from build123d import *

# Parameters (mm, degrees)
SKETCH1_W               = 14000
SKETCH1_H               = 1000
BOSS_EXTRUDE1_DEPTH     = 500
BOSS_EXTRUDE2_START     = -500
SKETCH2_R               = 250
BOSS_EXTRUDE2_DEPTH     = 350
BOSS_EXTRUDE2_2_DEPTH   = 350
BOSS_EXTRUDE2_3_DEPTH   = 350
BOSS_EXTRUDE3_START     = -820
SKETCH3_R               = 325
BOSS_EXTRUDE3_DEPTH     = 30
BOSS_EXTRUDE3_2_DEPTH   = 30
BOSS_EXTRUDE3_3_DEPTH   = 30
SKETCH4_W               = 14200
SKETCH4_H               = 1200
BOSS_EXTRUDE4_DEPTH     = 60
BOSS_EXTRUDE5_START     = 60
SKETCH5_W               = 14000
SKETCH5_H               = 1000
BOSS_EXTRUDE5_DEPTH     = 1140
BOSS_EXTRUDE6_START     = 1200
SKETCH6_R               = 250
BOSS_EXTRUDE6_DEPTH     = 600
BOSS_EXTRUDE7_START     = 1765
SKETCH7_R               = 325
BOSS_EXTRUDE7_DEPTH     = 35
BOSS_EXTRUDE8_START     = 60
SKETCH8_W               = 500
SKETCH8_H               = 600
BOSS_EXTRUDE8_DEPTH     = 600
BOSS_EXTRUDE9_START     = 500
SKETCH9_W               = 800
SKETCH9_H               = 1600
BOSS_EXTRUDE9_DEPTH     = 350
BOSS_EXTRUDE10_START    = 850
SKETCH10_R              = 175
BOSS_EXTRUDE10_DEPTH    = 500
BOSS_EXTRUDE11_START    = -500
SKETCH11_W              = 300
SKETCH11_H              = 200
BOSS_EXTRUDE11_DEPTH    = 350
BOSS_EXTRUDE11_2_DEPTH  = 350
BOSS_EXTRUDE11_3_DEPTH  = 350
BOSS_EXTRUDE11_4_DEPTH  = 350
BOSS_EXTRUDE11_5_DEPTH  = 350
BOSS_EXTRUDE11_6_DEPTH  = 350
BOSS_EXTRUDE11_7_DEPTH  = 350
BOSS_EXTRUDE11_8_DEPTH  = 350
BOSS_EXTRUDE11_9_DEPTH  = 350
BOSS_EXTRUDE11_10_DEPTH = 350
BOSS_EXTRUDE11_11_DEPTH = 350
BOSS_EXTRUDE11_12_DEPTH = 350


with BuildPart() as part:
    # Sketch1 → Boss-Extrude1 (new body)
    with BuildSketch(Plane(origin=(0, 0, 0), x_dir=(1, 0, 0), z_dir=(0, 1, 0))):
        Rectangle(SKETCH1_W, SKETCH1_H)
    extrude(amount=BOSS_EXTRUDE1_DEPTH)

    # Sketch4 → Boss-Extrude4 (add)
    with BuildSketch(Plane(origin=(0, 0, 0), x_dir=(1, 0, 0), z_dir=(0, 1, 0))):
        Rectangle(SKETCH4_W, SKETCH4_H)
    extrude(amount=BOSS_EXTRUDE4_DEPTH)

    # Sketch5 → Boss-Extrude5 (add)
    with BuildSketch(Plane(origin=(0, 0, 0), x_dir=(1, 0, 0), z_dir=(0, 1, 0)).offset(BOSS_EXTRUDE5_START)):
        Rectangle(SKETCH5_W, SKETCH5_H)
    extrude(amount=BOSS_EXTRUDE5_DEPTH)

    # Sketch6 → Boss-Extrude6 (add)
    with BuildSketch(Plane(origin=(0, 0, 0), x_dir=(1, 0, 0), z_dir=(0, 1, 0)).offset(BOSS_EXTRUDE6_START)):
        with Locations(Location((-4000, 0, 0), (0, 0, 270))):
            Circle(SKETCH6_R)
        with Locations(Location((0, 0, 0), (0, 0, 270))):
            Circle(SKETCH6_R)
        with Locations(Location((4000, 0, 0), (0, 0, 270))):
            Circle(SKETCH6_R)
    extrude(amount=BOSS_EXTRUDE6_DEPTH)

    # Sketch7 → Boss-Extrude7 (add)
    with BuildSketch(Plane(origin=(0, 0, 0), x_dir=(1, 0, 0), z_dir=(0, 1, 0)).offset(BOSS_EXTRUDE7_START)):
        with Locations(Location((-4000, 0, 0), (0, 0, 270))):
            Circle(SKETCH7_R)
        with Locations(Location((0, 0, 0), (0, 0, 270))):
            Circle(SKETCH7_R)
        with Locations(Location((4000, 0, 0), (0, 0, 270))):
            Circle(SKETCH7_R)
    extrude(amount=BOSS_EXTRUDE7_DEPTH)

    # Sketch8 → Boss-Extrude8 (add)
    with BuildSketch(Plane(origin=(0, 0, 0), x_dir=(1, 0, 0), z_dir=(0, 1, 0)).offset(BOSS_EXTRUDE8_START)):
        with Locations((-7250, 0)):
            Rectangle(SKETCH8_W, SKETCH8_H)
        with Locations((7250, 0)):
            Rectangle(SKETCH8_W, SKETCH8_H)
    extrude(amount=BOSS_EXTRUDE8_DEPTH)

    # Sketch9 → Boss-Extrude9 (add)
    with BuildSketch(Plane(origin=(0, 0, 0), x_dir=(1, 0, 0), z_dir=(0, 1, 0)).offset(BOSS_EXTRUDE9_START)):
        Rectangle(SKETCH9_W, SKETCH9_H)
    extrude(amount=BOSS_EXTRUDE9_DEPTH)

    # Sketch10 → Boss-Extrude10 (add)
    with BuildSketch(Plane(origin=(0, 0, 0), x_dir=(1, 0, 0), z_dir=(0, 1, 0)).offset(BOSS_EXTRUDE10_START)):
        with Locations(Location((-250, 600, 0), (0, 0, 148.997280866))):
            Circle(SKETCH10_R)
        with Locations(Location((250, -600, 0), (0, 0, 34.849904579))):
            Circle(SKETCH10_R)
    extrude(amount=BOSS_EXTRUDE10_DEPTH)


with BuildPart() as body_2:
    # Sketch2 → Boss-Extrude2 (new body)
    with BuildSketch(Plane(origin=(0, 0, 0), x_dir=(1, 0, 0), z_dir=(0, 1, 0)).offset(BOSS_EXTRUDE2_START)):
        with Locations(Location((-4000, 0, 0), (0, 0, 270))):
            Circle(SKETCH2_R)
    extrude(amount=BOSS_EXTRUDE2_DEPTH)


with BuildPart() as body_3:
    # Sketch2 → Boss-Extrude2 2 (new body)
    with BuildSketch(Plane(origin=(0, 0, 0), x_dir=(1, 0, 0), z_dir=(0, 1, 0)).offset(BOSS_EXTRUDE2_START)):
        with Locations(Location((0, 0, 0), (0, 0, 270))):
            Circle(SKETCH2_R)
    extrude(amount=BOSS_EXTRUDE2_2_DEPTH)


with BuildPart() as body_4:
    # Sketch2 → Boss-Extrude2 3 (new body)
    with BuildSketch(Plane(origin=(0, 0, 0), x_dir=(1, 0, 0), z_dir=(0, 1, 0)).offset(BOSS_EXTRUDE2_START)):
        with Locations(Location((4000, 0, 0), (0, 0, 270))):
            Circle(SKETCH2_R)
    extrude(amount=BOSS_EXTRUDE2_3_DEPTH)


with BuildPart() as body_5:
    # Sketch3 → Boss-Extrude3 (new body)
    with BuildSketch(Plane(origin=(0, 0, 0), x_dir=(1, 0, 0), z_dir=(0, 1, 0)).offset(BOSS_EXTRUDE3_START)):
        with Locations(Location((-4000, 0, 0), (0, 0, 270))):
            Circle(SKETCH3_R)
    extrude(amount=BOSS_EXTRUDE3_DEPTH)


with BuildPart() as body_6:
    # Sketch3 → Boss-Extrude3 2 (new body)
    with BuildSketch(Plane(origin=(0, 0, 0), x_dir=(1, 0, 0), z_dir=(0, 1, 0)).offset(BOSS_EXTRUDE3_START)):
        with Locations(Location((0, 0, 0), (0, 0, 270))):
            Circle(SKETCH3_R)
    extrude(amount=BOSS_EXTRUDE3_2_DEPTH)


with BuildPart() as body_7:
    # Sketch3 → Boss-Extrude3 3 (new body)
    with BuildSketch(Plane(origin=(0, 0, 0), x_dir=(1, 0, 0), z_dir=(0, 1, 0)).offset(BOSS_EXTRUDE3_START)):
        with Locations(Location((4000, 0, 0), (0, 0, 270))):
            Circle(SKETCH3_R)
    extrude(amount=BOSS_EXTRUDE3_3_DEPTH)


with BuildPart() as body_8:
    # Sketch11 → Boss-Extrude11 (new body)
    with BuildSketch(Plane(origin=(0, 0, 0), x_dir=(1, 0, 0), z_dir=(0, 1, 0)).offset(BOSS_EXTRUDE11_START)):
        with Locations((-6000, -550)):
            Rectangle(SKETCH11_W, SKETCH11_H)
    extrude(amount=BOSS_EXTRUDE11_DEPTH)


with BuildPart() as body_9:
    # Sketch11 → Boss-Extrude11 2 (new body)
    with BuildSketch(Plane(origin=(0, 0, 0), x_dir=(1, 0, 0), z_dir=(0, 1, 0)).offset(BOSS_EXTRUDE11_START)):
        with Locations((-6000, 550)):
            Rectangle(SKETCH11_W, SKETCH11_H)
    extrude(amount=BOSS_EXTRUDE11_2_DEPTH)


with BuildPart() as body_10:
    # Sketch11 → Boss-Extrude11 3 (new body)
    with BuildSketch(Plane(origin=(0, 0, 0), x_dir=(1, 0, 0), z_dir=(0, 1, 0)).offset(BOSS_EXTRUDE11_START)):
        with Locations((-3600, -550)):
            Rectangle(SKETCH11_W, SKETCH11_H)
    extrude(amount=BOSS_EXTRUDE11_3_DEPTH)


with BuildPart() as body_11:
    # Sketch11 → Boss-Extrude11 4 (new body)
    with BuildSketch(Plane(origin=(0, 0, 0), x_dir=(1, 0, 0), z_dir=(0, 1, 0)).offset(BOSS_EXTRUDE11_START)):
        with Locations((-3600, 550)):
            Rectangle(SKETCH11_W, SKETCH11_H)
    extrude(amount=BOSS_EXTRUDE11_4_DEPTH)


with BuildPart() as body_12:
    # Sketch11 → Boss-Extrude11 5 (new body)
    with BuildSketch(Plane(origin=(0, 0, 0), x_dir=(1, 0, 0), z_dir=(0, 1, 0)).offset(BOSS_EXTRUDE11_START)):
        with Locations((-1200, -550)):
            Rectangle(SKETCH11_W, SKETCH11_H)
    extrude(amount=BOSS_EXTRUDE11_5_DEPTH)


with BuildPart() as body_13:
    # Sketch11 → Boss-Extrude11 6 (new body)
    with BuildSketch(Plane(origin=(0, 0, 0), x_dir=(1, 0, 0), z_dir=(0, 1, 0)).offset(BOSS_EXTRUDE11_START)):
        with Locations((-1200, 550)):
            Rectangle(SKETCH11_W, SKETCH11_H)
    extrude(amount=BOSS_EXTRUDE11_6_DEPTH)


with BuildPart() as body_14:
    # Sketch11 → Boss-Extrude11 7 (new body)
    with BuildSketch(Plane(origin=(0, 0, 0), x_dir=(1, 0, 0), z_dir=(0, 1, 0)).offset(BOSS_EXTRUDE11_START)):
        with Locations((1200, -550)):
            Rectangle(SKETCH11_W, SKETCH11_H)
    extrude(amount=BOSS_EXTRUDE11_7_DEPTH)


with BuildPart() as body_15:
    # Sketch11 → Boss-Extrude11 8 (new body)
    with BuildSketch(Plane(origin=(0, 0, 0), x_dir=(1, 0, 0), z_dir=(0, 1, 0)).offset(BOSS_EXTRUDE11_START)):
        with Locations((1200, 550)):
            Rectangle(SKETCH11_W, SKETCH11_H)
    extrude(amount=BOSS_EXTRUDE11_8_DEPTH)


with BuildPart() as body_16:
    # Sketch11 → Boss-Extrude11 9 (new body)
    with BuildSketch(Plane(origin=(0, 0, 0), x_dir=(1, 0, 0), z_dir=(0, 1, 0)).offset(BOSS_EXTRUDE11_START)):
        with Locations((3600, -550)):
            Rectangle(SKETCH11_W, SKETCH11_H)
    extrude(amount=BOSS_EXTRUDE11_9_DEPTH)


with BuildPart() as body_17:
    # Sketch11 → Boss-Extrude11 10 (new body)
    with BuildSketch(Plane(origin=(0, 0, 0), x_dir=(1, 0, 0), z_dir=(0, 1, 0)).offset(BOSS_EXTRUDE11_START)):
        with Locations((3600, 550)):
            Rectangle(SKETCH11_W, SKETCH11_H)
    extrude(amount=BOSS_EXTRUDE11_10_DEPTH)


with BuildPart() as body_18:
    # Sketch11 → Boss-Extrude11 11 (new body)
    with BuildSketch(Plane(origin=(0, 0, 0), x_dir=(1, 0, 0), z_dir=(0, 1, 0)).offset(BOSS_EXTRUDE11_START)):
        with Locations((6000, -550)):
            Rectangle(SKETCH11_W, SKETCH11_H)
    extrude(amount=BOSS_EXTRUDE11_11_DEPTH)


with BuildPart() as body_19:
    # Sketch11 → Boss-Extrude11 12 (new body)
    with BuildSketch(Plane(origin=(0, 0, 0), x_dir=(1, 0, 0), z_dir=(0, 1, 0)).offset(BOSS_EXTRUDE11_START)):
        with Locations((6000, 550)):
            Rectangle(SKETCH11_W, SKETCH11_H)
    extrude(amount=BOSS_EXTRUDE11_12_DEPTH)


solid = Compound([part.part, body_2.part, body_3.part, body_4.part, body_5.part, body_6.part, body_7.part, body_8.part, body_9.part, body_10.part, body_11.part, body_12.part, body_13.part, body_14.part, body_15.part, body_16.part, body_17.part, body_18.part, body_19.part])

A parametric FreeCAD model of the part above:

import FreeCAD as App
import Part
import Sketcher


def add_polygon(sketch, points):
    """Adds a closed chain of lines whose ends are joined by coincident constraints."""
    first, n = sketch.GeometryCount, len(points)
    for a, b in zip(points, points[1:] + points[:1]):
        sketch.addGeometry(Part.LineSegment(App.Vector(*a, 0), App.Vector(*b, 0)), False)
    for i in range(n):
        sketch.addConstraint(Sketcher.Constraint("Coincident", first + i, 2, first + (i + 1) % n, 1))

doc = App.newDocument("Part")
params = doc.addObject("Spreadsheet::Sheet", "Params")
for row, (alias, value) in enumerate([
    ("sketch1_width", "14000 mm"),
    ("sketch1_height", "1000 mm"),
    ("pad1_length", "500 mm"),
    ("sketch2_width", "14200 mm"),
    ("sketch2_height", "1200 mm"),
    ("pad2_length", "60 mm"),
    ("sketch3_width", "14000 mm"),
    ("sketch3_height", "1000 mm"),
    ("pad3_length", "1140 mm"),
    ("sketch4_diameter", "500 mm"),
    ("pad4_length", "600 mm"),
    ("sketch5_diameter", "650 mm"),
    ("pad5_length", "35 mm"),
    ("sketch6_width", "500 mm"),
    ("sketch6_height", "600 mm"),
    ("pad6_length", "600 mm"),
    ("sketch7_width", "800 mm"),
    ("sketch7_height", "1600 mm"),
    ("pad7_length", "350 mm"),
    ("sketch8_diameter", "350 mm"),
    ("pad8_length", "500 mm"),
    ("sketch9_diameter", "500 mm"),
    ("pad9_length", "350 mm"),
    ("sketch10_diameter", "500 mm"),
    ("pad10_length", "350 mm"),
    ("sketch11_diameter", "500 mm"),
    ("pad11_length", "350 mm"),
    ("sketch12_diameter", "650 mm"),
    ("pad12_length", "30 mm"),
    ("sketch13_diameter", "650 mm"),
    ("pad13_length", "30 mm"),
    ("sketch14_diameter", "650 mm"),
    ("pad14_length", "30 mm"),
    ("sketch15_width", "300 mm"),
    ("sketch15_height", "200 mm"),
    ("pad15_length", "350 mm"),
    ("sketch16_width", "300 mm"),
    ("sketch16_height", "200 mm"),
    ("pad16_length", "350 mm"),
    ("sketch17_width", "300 mm"),
    ("sketch17_height", "200 mm"),
    ("pad17_length", "350 mm"),
    ("sketch18_width", "300 mm"),
    ("sketch18_height", "200 mm"),
    ("pad18_length", "350 mm"),
    ("sketch19_width", "300 mm"),
    ("sketch19_height", "200 mm"),
    ("pad19_length", "350 mm"),
    ("sketch20_width", "300 mm"),
    ("sketch20_height", "200 mm"),
    ("pad20_length", "350 mm"),
    ("sketch21_width", "300 mm"),
    ("sketch21_height", "200 mm"),
    ("pad21_length", "350 mm"),
    ("sketch22_width", "300 mm"),
    ("sketch22_height", "200 mm"),
    ("pad22_length", "350 mm"),
    ("sketch23_width", "300 mm"),
    ("sketch23_height", "200 mm"),
    ("pad23_length", "350 mm"),
    ("sketch24_width", "300 mm"),
    ("sketch24_height", "200 mm"),
    ("pad24_length", "350 mm"),
    ("sketch25_width", "300 mm"),
    ("sketch25_height", "200 mm"),
    ("pad25_length", "350 mm"),
    ("sketch26_width", "300 mm"),
    ("sketch26_height", "200 mm"),
    ("pad26_length", "350 mm"),
], start=1):
    params.set(f"A{row}", alias)
    params.set(f"B{row}", "=" + value)
    params.setAlias(f"B{row}", alias)

body = doc.addObject("PartDesign::Body", "Body")

# Sketch on XZ plane
sketch1 = body.newObject("Sketcher::SketchObject", "Sketch")
sketch1.AttachmentSupport = (doc.getObject("XZ_Plane"), [""])
sketch1.MapMode = "FlatFace"
add_polygon(sketch1, [(-7000, -500), (-7000, 500), (7000, 500), (7000, -500)])  # lines 0-3
sketch1.addConstraint(Sketcher.Constraint("Vertical", 0))
sketch1.addConstraint(Sketcher.Constraint("Horizontal", 1))
sketch1.addConstraint(Sketcher.Constraint("Vertical", 2))
sketch1.addConstraint(Sketcher.Constraint("Horizontal", 3))
sketch1.addConstraint(Sketcher.Constraint("Symmetric", 0, 2, 2, 2, -1, 1))
sketch1.addConstraint(Sketcher.Constraint("DistanceX", 1, 1, 1, 2, 14000.0))
sketch1.addConstraint(Sketcher.Constraint("DistanceY", 0, 1, 0, 2, 1000.0))
sketch1.setExpression("Constraints[9]", "Params.sketch1_width")
sketch1.setExpression("Constraints[10]", "Params.sketch1_height")
pad1 = body.newObject("PartDesign::Pad", "Pad")
pad1.Profile = sketch1
pad1.setExpression("Length", "Params.pad1_length")
pad1.Reversed = True

# Sketch on XZ plane
sketch2 = body.newObject("Sketcher::SketchObject", "Sketch001")
sketch2.AttachmentSupport = (doc.getObject("XZ_Plane"), [""])
sketch2.MapMode = "FlatFace"
add_polygon(sketch2, [(-7100, -600), (-7100, 600), (7100, 600), (7100, -600)])  # lines 0-3
sketch2.addConstraint(Sketcher.Constraint("Vertical", 0))
sketch2.addConstraint(Sketcher.Constraint("Horizontal", 1))
sketch2.addConstraint(Sketcher.Constraint("Vertical", 2))
sketch2.addConstraint(Sketcher.Constraint("Horizontal", 3))
sketch2.addConstraint(Sketcher.Constraint("Symmetric", 0, 2, 2, 2, -1, 1))
sketch2.addConstraint(Sketcher.Constraint("DistanceX", 1, 1, 1, 2, 14200.0))
sketch2.addConstraint(Sketcher.Constraint("DistanceY", 0, 1, 0, 2, 1200.0))
sketch2.setExpression("Constraints[9]", "Params.sketch2_width")
sketch2.setExpression("Constraints[10]", "Params.sketch2_height")
pad2 = body.newObject("PartDesign::Pad", "Pad001")
pad2.Profile = sketch2
pad2.setExpression("Length", "Params.pad2_length")
pad2.Reversed = True

# Sketch on XZ plane
sketch3 = body.newObject("Sketcher::SketchObject", "Sketch002")
sketch3.AttachmentSupport = (doc.getObject("XZ_Plane"), [""])
sketch3.MapMode = "FlatFace"
sketch3.AttachmentOffset = App.Placement(App.Vector(0, 0, -60), App.Rotation())
add_polygon(sketch3, [(-7000, -500), (-7000, 500), (7000, 500), (7000, -500)])  # lines 0-3
sketch3.addConstraint(Sketcher.Constraint("Vertical", 0))
sketch3.addConstraint(Sketcher.Constraint("Horizontal", 1))
sketch3.addConstraint(Sketcher.Constraint("Vertical", 2))
sketch3.addConstraint(Sketcher.Constraint("Horizontal", 3))
sketch3.addConstraint(Sketcher.Constraint("Symmetric", 0, 2, 2, 2, -1, 1))
sketch3.addConstraint(Sketcher.Constraint("DistanceX", 1, 1, 1, 2, 14000.0))
sketch3.addConstraint(Sketcher.Constraint("DistanceY", 0, 1, 0, 2, 1000.0))
sketch3.setExpression("Constraints[9]", "Params.sketch3_width")
sketch3.setExpression("Constraints[10]", "Params.sketch3_height")
pad3 = body.newObject("PartDesign::Pad", "Pad002")
pad3.Profile = sketch3
pad3.setExpression("Length", "Params.pad3_length")
pad3.Reversed = True

# Sketch on XZ plane
sketch4 = body.newObject("Sketcher::SketchObject", "Sketch003")
sketch4.AttachmentSupport = (doc.getObject("XZ_Plane"), [""])
sketch4.MapMode = "FlatFace"
sketch4.AttachmentOffset = App.Placement(App.Vector(0, 0, -1200), App.Rotation())
sketch4.addGeometry(Part.Circle(App.Vector(-4000, 0, 0), App.Vector(0, 0, 1), 250), False)
sketch4.addGeometry(Part.Circle(App.Vector(0, 0, 0), App.Vector(0, 0, 1), 250), False)
sketch4.addGeometry(Part.Circle(App.Vector(4000, 0, 0), App.Vector(0, 0, 1), 250), False)
sketch4.addConstraint(Sketcher.Constraint("Coincident", 1, 3, -1, 1))
sketch4.addConstraint(Sketcher.Constraint("Equal", 0, 1))
sketch4.addConstraint(Sketcher.Constraint("Equal", 1, 2))
sketch4.addConstraint(Sketcher.Constraint("Symmetric", 0, 3, 2, 3, -1, 1))
sketch4.addConstraint(Sketcher.Constraint("PointOnObject", 0, 3, -1))
sketch4.addConstraint(Sketcher.Constraint("Diameter", 0, 500.0))
sketch4.addConstraint(Sketcher.Constraint("DistanceX", 0, 3, -1, 1, 4000.0))
sketch4.setExpression("Constraints[5]", "Params.sketch4_diameter")
pad4 = body.newObject("PartDesign::Pad", "Pad003")
pad4.Profile = sketch4
pad4.setExpression("Length", "Params.pad4_length")
pad4.Reversed = True

# Sketch on XZ plane
sketch5 = body.newObject("Sketcher::SketchObject", "Sketch004")
sketch5.AttachmentSupport = (doc.getObject("XZ_Plane"), [""])
sketch5.MapMode = "FlatFace"
sketch5.AttachmentOffset = App.Placement(App.Vector(0, 0, -1765), App.Rotation())
sketch5.addGeometry(Part.Circle(App.Vector(-4000, 0, 0), App.Vector(0, 0, 1), 325), False)
sketch5.addGeometry(Part.Circle(App.Vector(0, 0, 0), App.Vector(0, 0, 1), 325), False)
sketch5.addGeometry(Part.Circle(App.Vector(4000, 0, 0), App.Vector(0, 0, 1), 325), False)
sketch5.addConstraint(Sketcher.Constraint("Coincident", 1, 3, -1, 1))
sketch5.addConstraint(Sketcher.Constraint("Equal", 0, 1))
sketch5.addConstraint(Sketcher.Constraint("Equal", 1, 2))
sketch5.addConstraint(Sketcher.Constraint("Symmetric", 0, 3, 2, 3, -1, 1))
sketch5.addConstraint(Sketcher.Constraint("PointOnObject", 0, 3, -1))
sketch5.addConstraint(Sketcher.Constraint("Diameter", 0, 650.0))
sketch5.addConstraint(Sketcher.Constraint("DistanceX", 0, 3, -1, 1, 4000.0))
sketch5.setExpression("Constraints[5]", "Params.sketch5_diameter")
pad5 = body.newObject("PartDesign::Pad", "Pad004")
pad5.Profile = sketch5
pad5.setExpression("Length", "Params.pad5_length")
pad5.Reversed = True

# Sketch on XZ plane
sketch6 = body.newObject("Sketcher::SketchObject", "Sketch005")
sketch6.AttachmentSupport = (doc.getObject("XZ_Plane"), [""])
sketch6.MapMode = "FlatFace"
sketch6.AttachmentOffset = App.Placement(App.Vector(0, 0, -60), App.Rotation())
add_polygon(sketch6, [(-7500, -300), (-7500, 300), (-7000, 300), (-7000, -300)])  # lines 0-3
add_polygon(sketch6, [(7000, -300), (7000, 300), (7500, 300), (7500, -300)])  # lines 4-7
sketch6.addConstraint(Sketcher.Constraint("Vertical", 0))
sketch6.addConstraint(Sketcher.Constraint("Horizontal", 1))
sketch6.addConstraint(Sketcher.Constraint("Vertical", 2))
sketch6.addConstraint(Sketcher.Constraint("Horizontal", 3))
sketch6.addConstraint(Sketcher.Constraint("Vertical", 4))
sketch6.addConstraint(Sketcher.Constraint("Horizontal", 5))
sketch6.addConstraint(Sketcher.Constraint("Vertical", 6))
sketch6.addConstraint(Sketcher.Constraint("Horizontal", 7))
sketch6.addConstraint(Sketcher.Constraint("Symmetric", 2, 2, 4, 2, -1, 1))
sketch6.addConstraint(Sketcher.Constraint("Symmetric", 0, 2, 6, 2, -1, 1))
sketch6.addConstraint(Sketcher.Constraint("Horizontal", 1, 2, 4, 2))
sketch6.addConstraint(Sketcher.Constraint("DistanceX", 1, 1, 1, 2, 500.0))
sketch6.addConstraint(Sketcher.Constraint("DistanceY", 0, 1, 0, 2, 600.0))
sketch6.addConstraint(Sketcher.Constraint("DistanceX", 0, 2, -1, 1, 7500.0))
sketch6.setExpression("Constraints[19]", "Params.sketch6_width")
sketch6.setExpression("Constraints[20]", "Params.sketch6_height")
pad6 = body.newObject("PartDesign::Pad", "Pad005")
pad6.Profile = sketch6
pad6.setExpression("Length", "Params.pad6_length")
pad6.Reversed = True

# Sketch on XZ plane
sketch7 = body.newObject("Sketcher::SketchObject", "Sketch006")
sketch7.AttachmentSupport = (doc.getObject("XZ_Plane"), [""])
sketch7.MapMode = "FlatFace"
sketch7.AttachmentOffset = App.Placement(App.Vector(0, 0, -500), App.Rotation())
add_polygon(sketch7, [(-400, -800), (-400, 800), (400, 800), (400, -800)])  # lines 0-3
sketch7.addConstraint(Sketcher.Constraint("Vertical", 0))
sketch7.addConstraint(Sketcher.Constraint("Horizontal", 1))
sketch7.addConstraint(Sketcher.Constraint("Vertical", 2))
sketch7.addConstraint(Sketcher.Constraint("Horizontal", 3))
sketch7.addConstraint(Sketcher.Constraint("Symmetric", 0, 2, 2, 2, -1, 1))
sketch7.addConstraint(Sketcher.Constraint("DistanceX", 1, 1, 1, 2, 800.0))
sketch7.addConstraint(Sketcher.Constraint("DistanceY", 0, 1, 0, 2, 1600.0))
sketch7.setExpression("Constraints[9]", "Params.sketch7_width")
sketch7.setExpression("Constraints[10]", "Params.sketch7_height")
pad7 = body.newObject("PartDesign::Pad", "Pad006")
pad7.Profile = sketch7
pad7.setExpression("Length", "Params.pad7_length")
pad7.Reversed = True

# Sketch on XZ plane
sketch8 = body.newObject("Sketcher::SketchObject", "Sketch007")
sketch8.AttachmentSupport = (doc.getObject("XZ_Plane"), [""])
sketch8.MapMode = "FlatFace"
sketch8.AttachmentOffset = App.Placement(App.Vector(0, 0, -850), App.Rotation())
sketch8.addGeometry(Part.Circle(App.Vector(-250, -600, 0), App.Vector(0, 0, 1), 175), False)
sketch8.addGeometry(Part.Circle(App.Vector(250, 600, 0), App.Vector(0, 0, 1), 175), False)
sketch8.addConstraint(Sketcher.Constraint("Equal", 0, 1))
sketch8.addConstraint(Sketcher.Constraint("Symmetric", 0, 3, 1, 3, -1, 1))
sketch8.addConstraint(Sketcher.Constraint("Diameter", 0, 350.0))
sketch8.addConstraint(Sketcher.Constraint("DistanceX", 0, 3, -1, 1, 250.0))
sketch8.addConstraint(Sketcher.Constraint("DistanceY", 0, 3, -1, 1, 600.0))
sketch8.setExpression("Constraints[2]", "Params.sketch8_diameter")
pad8 = body.newObject("PartDesign::Pad", "Pad007")
pad8.Profile = sketch8
pad8.setExpression("Length", "Params.pad8_length")
pad8.Reversed = True
body2 = doc.addObject("PartDesign::Body", "Body001")

# Sketch on XZ plane
sketch9 = body2.newObject("Sketcher::SketchObject", "Sketch008")
sketch9.AttachmentSupport = (doc.getObject("XZ_Plane001"), [""])
sketch9.MapMode = "FlatFace"
sketch9.AttachmentOffset = App.Placement(App.Vector(0, 0, 500), App.Rotation())
sketch9.addGeometry(Part.Circle(App.Vector(-4000, 0, 0), App.Vector(0, 0, 1), 250), False)
sketch9.addConstraint(Sketcher.Constraint("PointOnObject", 0, 3, -1))
sketch9.addConstraint(Sketcher.Constraint("Diameter", 0, 500.0))
sketch9.addConstraint(Sketcher.Constraint("DistanceX", 0, 3, -1, 1, 4000.0))
sketch9.setExpression("Constraints[1]", "Params.sketch9_diameter")
pad9 = body2.newObject("PartDesign::Pad", "Pad008")
pad9.Profile = sketch9
pad9.setExpression("Length", "Params.pad9_length")
pad9.Reversed = True
body3 = doc.addObject("PartDesign::Body", "Body002")

# Sketch on XZ plane
sketch10 = body3.newObject("Sketcher::SketchObject", "Sketch009")
sketch10.AttachmentSupport = (doc.getObject("XZ_Plane002"), [""])
sketch10.MapMode = "FlatFace"
sketch10.AttachmentOffset = App.Placement(App.Vector(0, 0, 500), App.Rotation())
sketch10.addGeometry(Part.Circle(App.Vector(0, 0, 0), App.Vector(0, 0, 1), 250), False)
sketch10.addConstraint(Sketcher.Constraint("Coincident", 0, 3, -1, 1))
sketch10.addConstraint(Sketcher.Constraint("Diameter", 0, 500.0))
sketch10.setExpression("Constraints[1]", "Params.sketch10_diameter")
pad10 = body3.newObject("PartDesign::Pad", "Pad009")
pad10.Profile = sketch10
pad10.setExpression("Length", "Params.pad10_length")
pad10.Reversed = True
body4 = doc.addObject("PartDesign::Body", "Body003")

# Sketch on XZ plane
sketch11 = body4.newObject("Sketcher::SketchObject", "Sketch010")
sketch11.AttachmentSupport = (doc.getObject("XZ_Plane003"), [""])
sketch11.MapMode = "FlatFace"
sketch11.AttachmentOffset = App.Placement(App.Vector(0, 0, 500), App.Rotation())
sketch11.addGeometry(Part.Circle(App.Vector(4000, 0, 0), App.Vector(0, 0, 1), 250), False)
sketch11.addConstraint(Sketcher.Constraint("PointOnObject", 0, 3, -1))
sketch11.addConstraint(Sketcher.Constraint("Diameter", 0, 500.0))
sketch11.addConstraint(Sketcher.Constraint("DistanceX", -1, 1, 0, 3, 4000.0))
sketch11.setExpression("Constraints[1]", "Params.sketch11_diameter")
pad11 = body4.newObject("PartDesign::Pad", "Pad010")
pad11.Profile = sketch11
pad11.setExpression("Length", "Params.pad11_length")
pad11.Reversed = True
body5 = doc.addObject("PartDesign::Body", "Body004")

# Sketch on XZ plane
sketch12 = body5.newObject("Sketcher::SketchObject", "Sketch011")
sketch12.AttachmentSupport = (doc.getObject("XZ_Plane004"), [""])
sketch12.MapMode = "FlatFace"
sketch12.AttachmentOffset = App.Placement(App.Vector(0, 0, 820), App.Rotation())
sketch12.addGeometry(Part.Circle(App.Vector(-4000, 0, 0), App.Vector(0, 0, 1), 325), False)
sketch12.addConstraint(Sketcher.Constraint("PointOnObject", 0, 3, -1))
sketch12.addConstraint(Sketcher.Constraint("Diameter", 0, 650.0))
sketch12.addConstraint(Sketcher.Constraint("DistanceX", 0, 3, -1, 1, 4000.0))
sketch12.setExpression("Constraints[1]", "Params.sketch12_diameter")
pad12 = body5.newObject("PartDesign::Pad", "Pad011")
pad12.Profile = sketch12
pad12.setExpression("Length", "Params.pad12_length")
pad12.Reversed = True
body6 = doc.addObject("PartDesign::Body", "Body005")

# Sketch on XZ plane
sketch13 = body6.newObject("Sketcher::SketchObject", "Sketch012")
sketch13.AttachmentSupport = (doc.getObject("XZ_Plane005"), [""])
sketch13.MapMode = "FlatFace"
sketch13.AttachmentOffset = App.Placement(App.Vector(0, 0, 820), App.Rotation())
sketch13.addGeometry(Part.Circle(App.Vector(0, 0, 0), App.Vector(0, 0, 1), 325), False)
sketch13.addConstraint(Sketcher.Constraint("Coincident", 0, 3, -1, 1))
sketch13.addConstraint(Sketcher.Constraint("Diameter", 0, 650.0))
sketch13.setExpression("Constraints[1]", "Params.sketch13_diameter")
pad13 = body6.newObject("PartDesign::Pad", "Pad012")
pad13.Profile = sketch13
pad13.setExpression("Length", "Params.pad13_length")
pad13.Reversed = True
body7 = doc.addObject("PartDesign::Body", "Body006")

# Sketch on XZ plane
sketch14 = body7.newObject("Sketcher::SketchObject", "Sketch013")
sketch14.AttachmentSupport = (doc.getObject("XZ_Plane006"), [""])
sketch14.MapMode = "FlatFace"
sketch14.AttachmentOffset = App.Placement(App.Vector(0, 0, 820), App.Rotation())
sketch14.addGeometry(Part.Circle(App.Vector(4000, 0, 0), App.Vector(0, 0, 1), 325), False)
sketch14.addConstraint(Sketcher.Constraint("PointOnObject", 0, 3, -1))
sketch14.addConstraint(Sketcher.Constraint("Diameter", 0, 650.0))
sketch14.addConstraint(Sketcher.Constraint("DistanceX", -1, 1, 0, 3, 4000.0))
sketch14.setExpression("Constraints[1]", "Params.sketch14_diameter")
pad14 = body7.newObject("PartDesign::Pad", "Pad013")
pad14.Profile = sketch14
pad14.setExpression("Length", "Params.pad14_length")
pad14.Reversed = True
body8 = doc.addObject("PartDesign::Body", "Body007")

# Sketch on XZ plane
sketch15 = body8.newObject("Sketcher::SketchObject", "Sketch014")
sketch15.AttachmentSupport = (doc.getObject("XZ_Plane007"), [""])
sketch15.MapMode = "FlatFace"
sketch15.AttachmentOffset = App.Placement(App.Vector(0, 0, 500), App.Rotation())
add_polygon(sketch15, [(-6150, 450), (-6150, 650), (-5850, 650), (-5850, 450)])  # lines 0-3
sketch15.addConstraint(Sketcher.Constraint("Vertical", 0))
sketch15.addConstraint(Sketcher.Constraint("Horizontal", 1))
sketch15.addConstraint(Sketcher.Constraint("Vertical", 2))
sketch15.addConstraint(Sketcher.Constraint("Horizontal", 3))
sketch15.addConstraint(Sketcher.Constraint("DistanceX", 1, 1, 1, 2, 300.0))
sketch15.addConstraint(Sketcher.Constraint("DistanceY", 0, 1, 0, 2, 200.0))
sketch15.addConstraint(Sketcher.Constraint("DistanceX", 0, 2, -1, 1, 6150.0))
sketch15.addConstraint(Sketcher.Constraint("DistanceY", -1, 1, 0, 2, 650.0))
sketch15.setExpression("Constraints[8]", "Params.sketch15_width")
sketch15.setExpression("Constraints[9]", "Params.sketch15_height")
pad15 = body8.newObject("PartDesign::Pad", "Pad014")
pad15.Profile = sketch15
pad15.setExpression("Length", "Params.pad15_length")
pad15.Reversed = True
body9 = doc.addObject("PartDesign::Body", "Body008")

# Sketch on XZ plane
sketch16 = body9.newObject("Sketcher::SketchObject", "Sketch015")
sketch16.AttachmentSupport = (doc.getObject("XZ_Plane008"), [""])
sketch16.MapMode = "FlatFace"
sketch16.AttachmentOffset = App.Placement(App.Vector(0, 0, 500), App.Rotation())
add_polygon(sketch16, [(-6150, -650), (-6150, -450), (-5850, -450), (-5850, -650)])  # lines 0-3
sketch16.addConstraint(Sketcher.Constraint("Vertical", 0))
sketch16.addConstraint(Sketcher.Constraint("Horizontal", 1))
sketch16.addConstraint(Sketcher.Constraint("Vertical", 2))
sketch16.addConstraint(Sketcher.Constraint("Horizontal", 3))
sketch16.addConstraint(Sketcher.Constraint("DistanceX", 1, 1, 1, 2, 300.0))
sketch16.addConstraint(Sketcher.Constraint("DistanceY", 0, 1, 0, 2, 200.0))
sketch16.addConstraint(Sketcher.Constraint("DistanceX", 0, 2, -1, 1, 6150.0))
sketch16.addConstraint(Sketcher.Constraint("DistanceY", 0, 2, -1, 1, 450.0))
sketch16.setExpression("Constraints[8]", "Params.sketch16_width")
sketch16.setExpression("Constraints[9]", "Params.sketch16_height")
pad16 = body9.newObject("PartDesign::Pad", "Pad015")
pad16.Profile = sketch16
pad16.setExpression("Length", "Params.pad16_length")
pad16.Reversed = True
body10 = doc.addObject("PartDesign::Body", "Body009")

# Sketch on XZ plane
sketch17 = body10.newObject("Sketcher::SketchObject", "Sketch016")
sketch17.AttachmentSupport = (doc.getObject("XZ_Plane009"), [""])
sketch17.MapMode = "FlatFace"
sketch17.AttachmentOffset = App.Placement(App.Vector(0, 0, 500), App.Rotation())
add_polygon(sketch17, [(-3750, 450), (-3750, 650), (-3450, 650), (-3450, 450)])  # lines 0-3
sketch17.addConstraint(Sketcher.Constraint("Vertical", 0))
sketch17.addConstraint(Sketcher.Constraint("Horizontal", 1))
sketch17.addConstraint(Sketcher.Constraint("Vertical", 2))
sketch17.addConstraint(Sketcher.Constraint("Horizontal", 3))
sketch17.addConstraint(Sketcher.Constraint("DistanceX", 1, 1, 1, 2, 300.0))
sketch17.addConstraint(Sketcher.Constraint("DistanceY", 0, 1, 0, 2, 200.0))
sketch17.addConstraint(Sketcher.Constraint("DistanceX", 0, 2, -1, 1, 3750.0))
sketch17.addConstraint(Sketcher.Constraint("DistanceY", -1, 1, 0, 2, 650.0))
sketch17.setExpression("Constraints[8]", "Params.sketch17_width")
sketch17.setExpression("Constraints[9]", "Params.sketch17_height")
pad17 = body10.newObject("PartDesign::Pad", "Pad016")
pad17.Profile = sketch17
pad17.setExpression("Length", "Params.pad17_length")
pad17.Reversed = True
body11 = doc.addObject("PartDesign::Body", "Body010")

# Sketch on XZ plane
sketch18 = body11.newObject("Sketcher::SketchObject", "Sketch017")
sketch18.AttachmentSupport = (doc.getObject("XZ_Plane010"), [""])
sketch18.MapMode = "FlatFace"
sketch18.AttachmentOffset = App.Placement(App.Vector(0, 0, 500), App.Rotation())
add_polygon(sketch18, [(-3750, -650), (-3750, -450), (-3450, -450), (-3450, -650)])  # lines 0-3
sketch18.addConstraint(Sketcher.Constraint("Vertical", 0))
sketch18.addConstraint(Sketcher.Constraint("Horizontal", 1))
sketch18.addConstraint(Sketcher.Constraint("Vertical", 2))
sketch18.addConstraint(Sketcher.Constraint("Horizontal", 3))
sketch18.addConstraint(Sketcher.Constraint("DistanceX", 1, 1, 1, 2, 300.0))
sketch18.addConstraint(Sketcher.Constraint("DistanceY", 0, 1, 0, 2, 200.0))
sketch18.addConstraint(Sketcher.Constraint("DistanceX", 0, 2, -1, 1, 3750.0))
sketch18.addConstraint(Sketcher.Constraint("DistanceY", 0, 2, -1, 1, 450.0))
sketch18.setExpression("Constraints[8]", "Params.sketch18_width")
sketch18.setExpression("Constraints[9]", "Params.sketch18_height")
pad18 = body11.newObject("PartDesign::Pad", "Pad017")
pad18.Profile = sketch18
pad18.setExpression("Length", "Params.pad18_length")
pad18.Reversed = True
body12 = doc.addObject("PartDesign::Body", "Body011")

# Sketch on XZ plane
sketch19 = body12.newObject("Sketcher::SketchObject", "Sketch018")
sketch19.AttachmentSupport = (doc.getObject("XZ_Plane011"), [""])
sketch19.MapMode = "FlatFace"
sketch19.AttachmentOffset = App.Placement(App.Vector(0, 0, 500), App.Rotation())
add_polygon(sketch19, [(-1350, 450), (-1350, 650), (-1050, 650), (-1050, 450)])  # lines 0-3
sketch19.addConstraint(Sketcher.Constraint("Vertical", 0))
sketch19.addConstraint(Sketcher.Constraint("Horizontal", 1))
sketch19.addConstraint(Sketcher.Constraint("Vertical", 2))
sketch19.addConstraint(Sketcher.Constraint("Horizontal", 3))
sketch19.addConstraint(Sketcher.Constraint("DistanceX", 1, 1, 1, 2, 300.0))
sketch19.addConstraint(Sketcher.Constraint("DistanceY", 0, 1, 0, 2, 200.0))
sketch19.addConstraint(Sketcher.Constraint("DistanceX", 0, 2, -1, 1, 1350.0))
sketch19.addConstraint(Sketcher.Constraint("DistanceY", -1, 1, 0, 2, 650.0))
sketch19.setExpression("Constraints[8]", "Params.sketch19_width")
sketch19.setExpression("Constraints[9]", "Params.sketch19_height")
pad19 = body12.newObject("PartDesign::Pad", "Pad018")
pad19.Profile = sketch19
pad19.setExpression("Length", "Params.pad19_length")
pad19.Reversed = True
body13 = doc.addObject("PartDesign::Body", "Body012")

# Sketch on XZ plane
sketch20 = body13.newObject("Sketcher::SketchObject", "Sketch019")
sketch20.AttachmentSupport = (doc.getObject("XZ_Plane012"), [""])
sketch20.MapMode = "FlatFace"
sketch20.AttachmentOffset = App.Placement(App.Vector(0, 0, 500), App.Rotation())
add_polygon(sketch20, [(-1350, -650), (-1350, -450), (-1050, -450), (-1050, -650)])  # lines 0-3
sketch20.addConstraint(Sketcher.Constraint("Vertical", 0))
sketch20.addConstraint(Sketcher.Constraint("Horizontal", 1))
sketch20.addConstraint(Sketcher.Constraint("Vertical", 2))
sketch20.addConstraint(Sketcher.Constraint("Horizontal", 3))
sketch20.addConstraint(Sketcher.Constraint("DistanceX", 1, 1, 1, 2, 300.0))
sketch20.addConstraint(Sketcher.Constraint("DistanceY", 0, 1, 0, 2, 200.0))
sketch20.addConstraint(Sketcher.Constraint("DistanceX", 0, 2, -1, 1, 1350.0))
sketch20.addConstraint(Sketcher.Constraint("DistanceY", 0, 2, -1, 1, 450.0))
sketch20.setExpression("Constraints[8]", "Params.sketch20_width")
sketch20.setExpression("Constraints[9]", "Params.sketch20_height")
pad20 = body13.newObject("PartDesign::Pad", "Pad019")
pad20.Profile = sketch20
pad20.setExpression("Length", "Params.pad20_length")
pad20.Reversed = True
body14 = doc.addObject("PartDesign::Body", "Body013")

# Sketch on XZ plane
sketch21 = body14.newObject("Sketcher::SketchObject", "Sketch020")
sketch21.AttachmentSupport = (doc.getObject("XZ_Plane013"), [""])
sketch21.MapMode = "FlatFace"
sketch21.AttachmentOffset = App.Placement(App.Vector(0, 0, 500), App.Rotation())
add_polygon(sketch21, [(1050, 450), (1050, 650), (1350, 650), (1350, 450)])  # lines 0-3
sketch21.addConstraint(Sketcher.Constraint("Vertical", 0))
sketch21.addConstraint(Sketcher.Constraint("Horizontal", 1))
sketch21.addConstraint(Sketcher.Constraint("Vertical", 2))
sketch21.addConstraint(Sketcher.Constraint("Horizontal", 3))
sketch21.addConstraint(Sketcher.Constraint("DistanceX", 1, 1, 1, 2, 300.0))
sketch21.addConstraint(Sketcher.Constraint("DistanceY", 0, 1, 0, 2, 200.0))
sketch21.addConstraint(Sketcher.Constraint("DistanceX", -1, 1, 0, 2, 1050.0))
sketch21.addConstraint(Sketcher.Constraint("DistanceY", -1, 1, 0, 2, 650.0))
sketch21.setExpression("Constraints[8]", "Params.sketch21_width")
sketch21.setExpression("Constraints[9]", "Params.sketch21_height")
pad21 = body14.newObject("PartDesign::Pad", "Pad020")
pad21.Profile = sketch21
pad21.setExpression("Length", "Params.pad21_length")
pad21.Reversed = True
body15 = doc.addObject("PartDesign::Body", "Body014")

# Sketch on XZ plane
sketch22 = body15.newObject("Sketcher::SketchObject", "Sketch021")
sketch22.AttachmentSupport = (doc.getObject("XZ_Plane014"), [""])
sketch22.MapMode = "FlatFace"
sketch22.AttachmentOffset = App.Placement(App.Vector(0, 0, 500), App.Rotation())
add_polygon(sketch22, [(1050, -650), (1050, -450), (1350, -450), (1350, -650)])  # lines 0-3
sketch22.addConstraint(Sketcher.Constraint("Vertical", 0))
sketch22.addConstraint(Sketcher.Constraint("Horizontal", 1))
sketch22.addConstraint(Sketcher.Constraint("Vertical", 2))
sketch22.addConstraint(Sketcher.Constraint("Horizontal", 3))
sketch22.addConstraint(Sketcher.Constraint("DistanceX", 1, 1, 1, 2, 300.0))
sketch22.addConstraint(Sketcher.Constraint("DistanceY", 0, 1, 0, 2, 200.0))
sketch22.addConstraint(Sketcher.Constraint("DistanceX", -1, 1, 0, 2, 1050.0))
sketch22.addConstraint(Sketcher.Constraint("DistanceY", 0, 2, -1, 1, 450.0))
sketch22.setExpression("Constraints[8]", "Params.sketch22_width")
sketch22.setExpression("Constraints[9]", "Params.sketch22_height")
pad22 = body15.newObject("PartDesign::Pad", "Pad021")
pad22.Profile = sketch22
pad22.setExpression("Length", "Params.pad22_length")
pad22.Reversed = True
body16 = doc.addObject("PartDesign::Body", "Body015")

# Sketch on XZ plane
sketch23 = body16.newObject("Sketcher::SketchObject", "Sketch022")
sketch23.AttachmentSupport = (doc.getObject("XZ_Plane015"), [""])
sketch23.MapMode = "FlatFace"
sketch23.AttachmentOffset = App.Placement(App.Vector(0, 0, 500), App.Rotation())
add_polygon(sketch23, [(3450, 450), (3450, 650), (3750, 650), (3750, 450)])  # lines 0-3
sketch23.addConstraint(Sketcher.Constraint("Vertical", 0))
sketch23.addConstraint(Sketcher.Constraint("Horizontal", 1))
sketch23.addConstraint(Sketcher.Constraint("Vertical", 2))
sketch23.addConstraint(Sketcher.Constraint("Horizontal", 3))
sketch23.addConstraint(Sketcher.Constraint("DistanceX", 1, 1, 1, 2, 300.0))
sketch23.addConstraint(Sketcher.Constraint("DistanceY", 0, 1, 0, 2, 200.0))
sketch23.addConstraint(Sketcher.Constraint("DistanceX", -1, 1, 0, 2, 3450.0))
sketch23.addConstraint(Sketcher.Constraint("DistanceY", -1, 1, 0, 2, 650.0))
sketch23.setExpression("Constraints[8]", "Params.sketch23_width")
sketch23.setExpression("Constraints[9]", "Params.sketch23_height")
pad23 = body16.newObject("PartDesign::Pad", "Pad022")
pad23.Profile = sketch23
pad23.setExpression("Length", "Params.pad23_length")
pad23.Reversed = True
body17 = doc.addObject("PartDesign::Body", "Body016")

# Sketch on XZ plane
sketch24 = body17.newObject("Sketcher::SketchObject", "Sketch023")
sketch24.AttachmentSupport = (doc.getObject("XZ_Plane016"), [""])
sketch24.MapMode = "FlatFace"
sketch24.AttachmentOffset = App.Placement(App.Vector(0, 0, 500), App.Rotation())
add_polygon(sketch24, [(3450, -650), (3450, -450), (3750, -450), (3750, -650)])  # lines 0-3
sketch24.addConstraint(Sketcher.Constraint("Vertical", 0))
sketch24.addConstraint(Sketcher.Constraint("Horizontal", 1))
sketch24.addConstraint(Sketcher.Constraint("Vertical", 2))
sketch24.addConstraint(Sketcher.Constraint("Horizontal", 3))
sketch24.addConstraint(Sketcher.Constraint("DistanceX", 1, 1, 1, 2, 300.0))
sketch24.addConstraint(Sketcher.Constraint("DistanceY", 0, 1, 0, 2, 200.0))
sketch24.addConstraint(Sketcher.Constraint("DistanceX", -1, 1, 0, 2, 3450.0))
sketch24.addConstraint(Sketcher.Constraint("DistanceY", 0, 2, -1, 1, 450.0))
sketch24.setExpression("Constraints[8]", "Params.sketch24_width")
sketch24.setExpression("Constraints[9]", "Params.sketch24_height")
pad24 = body17.newObject("PartDesign::Pad", "Pad023")
pad24.Profile = sketch24
pad24.setExpression("Length", "Params.pad24_length")
pad24.Reversed = True
body18 = doc.addObject("PartDesign::Body", "Body017")

# Sketch on XZ plane
sketch25 = body18.newObject("Sketcher::SketchObject", "Sketch024")
sketch25.AttachmentSupport = (doc.getObject("XZ_Plane017"), [""])
sketch25.MapMode = "FlatFace"
sketch25.AttachmentOffset = App.Placement(App.Vector(0, 0, 500), App.Rotation())
add_polygon(sketch25, [(5850, 450), (5850, 650), (6150, 650), (6150, 450)])  # lines 0-3
sketch25.addConstraint(Sketcher.Constraint("Vertical", 0))
sketch25.addConstraint(Sketcher.Constraint("Horizontal", 1))
sketch25.addConstraint(Sketcher.Constraint("Vertical", 2))
sketch25.addConstraint(Sketcher.Constraint("Horizontal", 3))
sketch25.addConstraint(Sketcher.Constraint("DistanceX", 1, 1, 1, 2, 300.0))
sketch25.addConstraint(Sketcher.Constraint("DistanceY", 0, 1, 0, 2, 200.0))
sketch25.addConstraint(Sketcher.Constraint("DistanceX", -1, 1, 0, 2, 5850.0))
sketch25.addConstraint(Sketcher.Constraint("DistanceY", -1, 1, 0, 2, 650.0))
sketch25.setExpression("Constraints[8]", "Params.sketch25_width")
sketch25.setExpression("Constraints[9]", "Params.sketch25_height")
pad25 = body18.newObject("PartDesign::Pad", "Pad024")
pad25.Profile = sketch25
pad25.setExpression("Length", "Params.pad25_length")
pad25.Reversed = True
body19 = doc.addObject("PartDesign::Body", "Body018")

# Sketch on XZ plane
sketch26 = body19.newObject("Sketcher::SketchObject", "Sketch025")
sketch26.AttachmentSupport = (doc.getObject("XZ_Plane018"), [""])
sketch26.MapMode = "FlatFace"
sketch26.AttachmentOffset = App.Placement(App.Vector(0, 0, 500), App.Rotation())
add_polygon(sketch26, [(5850, -650), (5850, -450), (6150, -450), (6150, -650)])  # lines 0-3
sketch26.addConstraint(Sketcher.Constraint("Vertical", 0))
sketch26.addConstraint(Sketcher.Constraint("Horizontal", 1))
sketch26.addConstraint(Sketcher.Constraint("Vertical", 2))
sketch26.addConstraint(Sketcher.Constraint("Horizontal", 3))
sketch26.addConstraint(Sketcher.Constraint("DistanceX", 1, 1, 1, 2, 300.0))
sketch26.addConstraint(Sketcher.Constraint("DistanceY", 0, 1, 0, 2, 200.0))
sketch26.addConstraint(Sketcher.Constraint("DistanceX", -1, 1, 0, 2, 5850.0))
sketch26.addConstraint(Sketcher.Constraint("DistanceY", 0, 2, -1, 1, 450.0))
sketch26.setExpression("Constraints[8]", "Params.sketch26_width")
sketch26.setExpression("Constraints[9]", "Params.sketch26_height")
pad26 = body19.newObject("PartDesign::Pad", "Pad025")
pad26.Profile = sketch26
pad26.setExpression("Length", "Params.pad26_length")
pad26.Reversed = True

doc.recompute()
